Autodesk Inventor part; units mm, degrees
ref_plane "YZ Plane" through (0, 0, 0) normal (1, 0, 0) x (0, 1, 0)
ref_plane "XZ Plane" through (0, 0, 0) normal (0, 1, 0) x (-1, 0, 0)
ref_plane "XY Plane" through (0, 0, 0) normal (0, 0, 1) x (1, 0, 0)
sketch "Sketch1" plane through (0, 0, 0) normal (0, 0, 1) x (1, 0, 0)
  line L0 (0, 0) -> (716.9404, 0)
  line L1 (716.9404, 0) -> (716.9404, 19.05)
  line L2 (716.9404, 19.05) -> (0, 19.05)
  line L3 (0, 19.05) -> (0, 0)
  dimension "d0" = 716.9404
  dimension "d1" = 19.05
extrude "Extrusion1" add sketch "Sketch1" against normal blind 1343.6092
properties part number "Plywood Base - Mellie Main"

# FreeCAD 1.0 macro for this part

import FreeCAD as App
import Part
import Sketcher

V = App.Vector
Q = App.Units.Quantity


def add_polygon(sketch, points):
    """Adds a closed chain of lines whose ends are joined by coincident constraints."""
    first, n = sketch.GeometryCount, len(points)
    for a, b in zip(points, points[1:] + points[:1]):
        sketch.addGeometry(Part.LineSegment(App.Vector(*a, 0), App.Vector(*b, 0)), False)
    for i in range(n):
        sketch.addConstraint(Sketcher.Constraint("Coincident", first + i, 2, first + (i + 1) % n, 1))

doc = App.newDocument("Part")
params = doc.addObject("Spreadsheet::Sheet", "Params")
for row, (alias, value) in enumerate([
    ("sketch1_height", "0.75 in"),
    ("sketch1_width", "28.226 in"),
    ("pad1_length", "52.898 in"),
], start=1):
    params.set(f"A{row}", alias)
    params.set(f"B{row}", "=" + value)
    params.setAlias(f"B{row}", alias)

body = doc.addObject("PartDesign::Body", "Body")

# Sketch on XY plane
sketch1 = doc.addObject("Sketcher::SketchObject", "Sketch")
body.addObject(sketch1)
sketch1.AttachmentSupport = (doc.XY_Plane, [""])
sketch1.MapMode = "FlatFace"
add_polygon(sketch1, [(0, 19), (0, 0), (717, 0), (717, 19)])  # lines 0-3
sketch1.addConstraint(Sketcher.Constraint("Vertical", 0))
sketch1.addConstraint(Sketcher.Constraint("Horizontal", 1))
sketch1.addConstraint(Sketcher.Constraint("Vertical", 2))
sketch1.addConstraint(Sketcher.Constraint("Horizontal", 3))
sketch1.addConstraint(Sketcher.Constraint("Coincident", 0, 2, -1, 1))
sketch1.addConstraint(Sketcher.Constraint("DistanceY", 0, 2, 0, 1, Q("0.75 in")))
sketch1.addConstraint(Sketcher.Constraint("DistanceX", 1, 1, 1, 2, Q("28.226 in")))
sketch1.setExpression("Constraints[9]", "Params.sketch1_height")
sketch1.setExpression("Constraints[10]", "Params.sketch1_width")
pad1 = doc.addObject("PartDesign::Pad", "Pad")
body.addObject(pad1)
pad1.Profile = sketch1
pad1.setExpression("Length", "Params.pad1_length")
pad1.Reversed = True

doc.recompute()
